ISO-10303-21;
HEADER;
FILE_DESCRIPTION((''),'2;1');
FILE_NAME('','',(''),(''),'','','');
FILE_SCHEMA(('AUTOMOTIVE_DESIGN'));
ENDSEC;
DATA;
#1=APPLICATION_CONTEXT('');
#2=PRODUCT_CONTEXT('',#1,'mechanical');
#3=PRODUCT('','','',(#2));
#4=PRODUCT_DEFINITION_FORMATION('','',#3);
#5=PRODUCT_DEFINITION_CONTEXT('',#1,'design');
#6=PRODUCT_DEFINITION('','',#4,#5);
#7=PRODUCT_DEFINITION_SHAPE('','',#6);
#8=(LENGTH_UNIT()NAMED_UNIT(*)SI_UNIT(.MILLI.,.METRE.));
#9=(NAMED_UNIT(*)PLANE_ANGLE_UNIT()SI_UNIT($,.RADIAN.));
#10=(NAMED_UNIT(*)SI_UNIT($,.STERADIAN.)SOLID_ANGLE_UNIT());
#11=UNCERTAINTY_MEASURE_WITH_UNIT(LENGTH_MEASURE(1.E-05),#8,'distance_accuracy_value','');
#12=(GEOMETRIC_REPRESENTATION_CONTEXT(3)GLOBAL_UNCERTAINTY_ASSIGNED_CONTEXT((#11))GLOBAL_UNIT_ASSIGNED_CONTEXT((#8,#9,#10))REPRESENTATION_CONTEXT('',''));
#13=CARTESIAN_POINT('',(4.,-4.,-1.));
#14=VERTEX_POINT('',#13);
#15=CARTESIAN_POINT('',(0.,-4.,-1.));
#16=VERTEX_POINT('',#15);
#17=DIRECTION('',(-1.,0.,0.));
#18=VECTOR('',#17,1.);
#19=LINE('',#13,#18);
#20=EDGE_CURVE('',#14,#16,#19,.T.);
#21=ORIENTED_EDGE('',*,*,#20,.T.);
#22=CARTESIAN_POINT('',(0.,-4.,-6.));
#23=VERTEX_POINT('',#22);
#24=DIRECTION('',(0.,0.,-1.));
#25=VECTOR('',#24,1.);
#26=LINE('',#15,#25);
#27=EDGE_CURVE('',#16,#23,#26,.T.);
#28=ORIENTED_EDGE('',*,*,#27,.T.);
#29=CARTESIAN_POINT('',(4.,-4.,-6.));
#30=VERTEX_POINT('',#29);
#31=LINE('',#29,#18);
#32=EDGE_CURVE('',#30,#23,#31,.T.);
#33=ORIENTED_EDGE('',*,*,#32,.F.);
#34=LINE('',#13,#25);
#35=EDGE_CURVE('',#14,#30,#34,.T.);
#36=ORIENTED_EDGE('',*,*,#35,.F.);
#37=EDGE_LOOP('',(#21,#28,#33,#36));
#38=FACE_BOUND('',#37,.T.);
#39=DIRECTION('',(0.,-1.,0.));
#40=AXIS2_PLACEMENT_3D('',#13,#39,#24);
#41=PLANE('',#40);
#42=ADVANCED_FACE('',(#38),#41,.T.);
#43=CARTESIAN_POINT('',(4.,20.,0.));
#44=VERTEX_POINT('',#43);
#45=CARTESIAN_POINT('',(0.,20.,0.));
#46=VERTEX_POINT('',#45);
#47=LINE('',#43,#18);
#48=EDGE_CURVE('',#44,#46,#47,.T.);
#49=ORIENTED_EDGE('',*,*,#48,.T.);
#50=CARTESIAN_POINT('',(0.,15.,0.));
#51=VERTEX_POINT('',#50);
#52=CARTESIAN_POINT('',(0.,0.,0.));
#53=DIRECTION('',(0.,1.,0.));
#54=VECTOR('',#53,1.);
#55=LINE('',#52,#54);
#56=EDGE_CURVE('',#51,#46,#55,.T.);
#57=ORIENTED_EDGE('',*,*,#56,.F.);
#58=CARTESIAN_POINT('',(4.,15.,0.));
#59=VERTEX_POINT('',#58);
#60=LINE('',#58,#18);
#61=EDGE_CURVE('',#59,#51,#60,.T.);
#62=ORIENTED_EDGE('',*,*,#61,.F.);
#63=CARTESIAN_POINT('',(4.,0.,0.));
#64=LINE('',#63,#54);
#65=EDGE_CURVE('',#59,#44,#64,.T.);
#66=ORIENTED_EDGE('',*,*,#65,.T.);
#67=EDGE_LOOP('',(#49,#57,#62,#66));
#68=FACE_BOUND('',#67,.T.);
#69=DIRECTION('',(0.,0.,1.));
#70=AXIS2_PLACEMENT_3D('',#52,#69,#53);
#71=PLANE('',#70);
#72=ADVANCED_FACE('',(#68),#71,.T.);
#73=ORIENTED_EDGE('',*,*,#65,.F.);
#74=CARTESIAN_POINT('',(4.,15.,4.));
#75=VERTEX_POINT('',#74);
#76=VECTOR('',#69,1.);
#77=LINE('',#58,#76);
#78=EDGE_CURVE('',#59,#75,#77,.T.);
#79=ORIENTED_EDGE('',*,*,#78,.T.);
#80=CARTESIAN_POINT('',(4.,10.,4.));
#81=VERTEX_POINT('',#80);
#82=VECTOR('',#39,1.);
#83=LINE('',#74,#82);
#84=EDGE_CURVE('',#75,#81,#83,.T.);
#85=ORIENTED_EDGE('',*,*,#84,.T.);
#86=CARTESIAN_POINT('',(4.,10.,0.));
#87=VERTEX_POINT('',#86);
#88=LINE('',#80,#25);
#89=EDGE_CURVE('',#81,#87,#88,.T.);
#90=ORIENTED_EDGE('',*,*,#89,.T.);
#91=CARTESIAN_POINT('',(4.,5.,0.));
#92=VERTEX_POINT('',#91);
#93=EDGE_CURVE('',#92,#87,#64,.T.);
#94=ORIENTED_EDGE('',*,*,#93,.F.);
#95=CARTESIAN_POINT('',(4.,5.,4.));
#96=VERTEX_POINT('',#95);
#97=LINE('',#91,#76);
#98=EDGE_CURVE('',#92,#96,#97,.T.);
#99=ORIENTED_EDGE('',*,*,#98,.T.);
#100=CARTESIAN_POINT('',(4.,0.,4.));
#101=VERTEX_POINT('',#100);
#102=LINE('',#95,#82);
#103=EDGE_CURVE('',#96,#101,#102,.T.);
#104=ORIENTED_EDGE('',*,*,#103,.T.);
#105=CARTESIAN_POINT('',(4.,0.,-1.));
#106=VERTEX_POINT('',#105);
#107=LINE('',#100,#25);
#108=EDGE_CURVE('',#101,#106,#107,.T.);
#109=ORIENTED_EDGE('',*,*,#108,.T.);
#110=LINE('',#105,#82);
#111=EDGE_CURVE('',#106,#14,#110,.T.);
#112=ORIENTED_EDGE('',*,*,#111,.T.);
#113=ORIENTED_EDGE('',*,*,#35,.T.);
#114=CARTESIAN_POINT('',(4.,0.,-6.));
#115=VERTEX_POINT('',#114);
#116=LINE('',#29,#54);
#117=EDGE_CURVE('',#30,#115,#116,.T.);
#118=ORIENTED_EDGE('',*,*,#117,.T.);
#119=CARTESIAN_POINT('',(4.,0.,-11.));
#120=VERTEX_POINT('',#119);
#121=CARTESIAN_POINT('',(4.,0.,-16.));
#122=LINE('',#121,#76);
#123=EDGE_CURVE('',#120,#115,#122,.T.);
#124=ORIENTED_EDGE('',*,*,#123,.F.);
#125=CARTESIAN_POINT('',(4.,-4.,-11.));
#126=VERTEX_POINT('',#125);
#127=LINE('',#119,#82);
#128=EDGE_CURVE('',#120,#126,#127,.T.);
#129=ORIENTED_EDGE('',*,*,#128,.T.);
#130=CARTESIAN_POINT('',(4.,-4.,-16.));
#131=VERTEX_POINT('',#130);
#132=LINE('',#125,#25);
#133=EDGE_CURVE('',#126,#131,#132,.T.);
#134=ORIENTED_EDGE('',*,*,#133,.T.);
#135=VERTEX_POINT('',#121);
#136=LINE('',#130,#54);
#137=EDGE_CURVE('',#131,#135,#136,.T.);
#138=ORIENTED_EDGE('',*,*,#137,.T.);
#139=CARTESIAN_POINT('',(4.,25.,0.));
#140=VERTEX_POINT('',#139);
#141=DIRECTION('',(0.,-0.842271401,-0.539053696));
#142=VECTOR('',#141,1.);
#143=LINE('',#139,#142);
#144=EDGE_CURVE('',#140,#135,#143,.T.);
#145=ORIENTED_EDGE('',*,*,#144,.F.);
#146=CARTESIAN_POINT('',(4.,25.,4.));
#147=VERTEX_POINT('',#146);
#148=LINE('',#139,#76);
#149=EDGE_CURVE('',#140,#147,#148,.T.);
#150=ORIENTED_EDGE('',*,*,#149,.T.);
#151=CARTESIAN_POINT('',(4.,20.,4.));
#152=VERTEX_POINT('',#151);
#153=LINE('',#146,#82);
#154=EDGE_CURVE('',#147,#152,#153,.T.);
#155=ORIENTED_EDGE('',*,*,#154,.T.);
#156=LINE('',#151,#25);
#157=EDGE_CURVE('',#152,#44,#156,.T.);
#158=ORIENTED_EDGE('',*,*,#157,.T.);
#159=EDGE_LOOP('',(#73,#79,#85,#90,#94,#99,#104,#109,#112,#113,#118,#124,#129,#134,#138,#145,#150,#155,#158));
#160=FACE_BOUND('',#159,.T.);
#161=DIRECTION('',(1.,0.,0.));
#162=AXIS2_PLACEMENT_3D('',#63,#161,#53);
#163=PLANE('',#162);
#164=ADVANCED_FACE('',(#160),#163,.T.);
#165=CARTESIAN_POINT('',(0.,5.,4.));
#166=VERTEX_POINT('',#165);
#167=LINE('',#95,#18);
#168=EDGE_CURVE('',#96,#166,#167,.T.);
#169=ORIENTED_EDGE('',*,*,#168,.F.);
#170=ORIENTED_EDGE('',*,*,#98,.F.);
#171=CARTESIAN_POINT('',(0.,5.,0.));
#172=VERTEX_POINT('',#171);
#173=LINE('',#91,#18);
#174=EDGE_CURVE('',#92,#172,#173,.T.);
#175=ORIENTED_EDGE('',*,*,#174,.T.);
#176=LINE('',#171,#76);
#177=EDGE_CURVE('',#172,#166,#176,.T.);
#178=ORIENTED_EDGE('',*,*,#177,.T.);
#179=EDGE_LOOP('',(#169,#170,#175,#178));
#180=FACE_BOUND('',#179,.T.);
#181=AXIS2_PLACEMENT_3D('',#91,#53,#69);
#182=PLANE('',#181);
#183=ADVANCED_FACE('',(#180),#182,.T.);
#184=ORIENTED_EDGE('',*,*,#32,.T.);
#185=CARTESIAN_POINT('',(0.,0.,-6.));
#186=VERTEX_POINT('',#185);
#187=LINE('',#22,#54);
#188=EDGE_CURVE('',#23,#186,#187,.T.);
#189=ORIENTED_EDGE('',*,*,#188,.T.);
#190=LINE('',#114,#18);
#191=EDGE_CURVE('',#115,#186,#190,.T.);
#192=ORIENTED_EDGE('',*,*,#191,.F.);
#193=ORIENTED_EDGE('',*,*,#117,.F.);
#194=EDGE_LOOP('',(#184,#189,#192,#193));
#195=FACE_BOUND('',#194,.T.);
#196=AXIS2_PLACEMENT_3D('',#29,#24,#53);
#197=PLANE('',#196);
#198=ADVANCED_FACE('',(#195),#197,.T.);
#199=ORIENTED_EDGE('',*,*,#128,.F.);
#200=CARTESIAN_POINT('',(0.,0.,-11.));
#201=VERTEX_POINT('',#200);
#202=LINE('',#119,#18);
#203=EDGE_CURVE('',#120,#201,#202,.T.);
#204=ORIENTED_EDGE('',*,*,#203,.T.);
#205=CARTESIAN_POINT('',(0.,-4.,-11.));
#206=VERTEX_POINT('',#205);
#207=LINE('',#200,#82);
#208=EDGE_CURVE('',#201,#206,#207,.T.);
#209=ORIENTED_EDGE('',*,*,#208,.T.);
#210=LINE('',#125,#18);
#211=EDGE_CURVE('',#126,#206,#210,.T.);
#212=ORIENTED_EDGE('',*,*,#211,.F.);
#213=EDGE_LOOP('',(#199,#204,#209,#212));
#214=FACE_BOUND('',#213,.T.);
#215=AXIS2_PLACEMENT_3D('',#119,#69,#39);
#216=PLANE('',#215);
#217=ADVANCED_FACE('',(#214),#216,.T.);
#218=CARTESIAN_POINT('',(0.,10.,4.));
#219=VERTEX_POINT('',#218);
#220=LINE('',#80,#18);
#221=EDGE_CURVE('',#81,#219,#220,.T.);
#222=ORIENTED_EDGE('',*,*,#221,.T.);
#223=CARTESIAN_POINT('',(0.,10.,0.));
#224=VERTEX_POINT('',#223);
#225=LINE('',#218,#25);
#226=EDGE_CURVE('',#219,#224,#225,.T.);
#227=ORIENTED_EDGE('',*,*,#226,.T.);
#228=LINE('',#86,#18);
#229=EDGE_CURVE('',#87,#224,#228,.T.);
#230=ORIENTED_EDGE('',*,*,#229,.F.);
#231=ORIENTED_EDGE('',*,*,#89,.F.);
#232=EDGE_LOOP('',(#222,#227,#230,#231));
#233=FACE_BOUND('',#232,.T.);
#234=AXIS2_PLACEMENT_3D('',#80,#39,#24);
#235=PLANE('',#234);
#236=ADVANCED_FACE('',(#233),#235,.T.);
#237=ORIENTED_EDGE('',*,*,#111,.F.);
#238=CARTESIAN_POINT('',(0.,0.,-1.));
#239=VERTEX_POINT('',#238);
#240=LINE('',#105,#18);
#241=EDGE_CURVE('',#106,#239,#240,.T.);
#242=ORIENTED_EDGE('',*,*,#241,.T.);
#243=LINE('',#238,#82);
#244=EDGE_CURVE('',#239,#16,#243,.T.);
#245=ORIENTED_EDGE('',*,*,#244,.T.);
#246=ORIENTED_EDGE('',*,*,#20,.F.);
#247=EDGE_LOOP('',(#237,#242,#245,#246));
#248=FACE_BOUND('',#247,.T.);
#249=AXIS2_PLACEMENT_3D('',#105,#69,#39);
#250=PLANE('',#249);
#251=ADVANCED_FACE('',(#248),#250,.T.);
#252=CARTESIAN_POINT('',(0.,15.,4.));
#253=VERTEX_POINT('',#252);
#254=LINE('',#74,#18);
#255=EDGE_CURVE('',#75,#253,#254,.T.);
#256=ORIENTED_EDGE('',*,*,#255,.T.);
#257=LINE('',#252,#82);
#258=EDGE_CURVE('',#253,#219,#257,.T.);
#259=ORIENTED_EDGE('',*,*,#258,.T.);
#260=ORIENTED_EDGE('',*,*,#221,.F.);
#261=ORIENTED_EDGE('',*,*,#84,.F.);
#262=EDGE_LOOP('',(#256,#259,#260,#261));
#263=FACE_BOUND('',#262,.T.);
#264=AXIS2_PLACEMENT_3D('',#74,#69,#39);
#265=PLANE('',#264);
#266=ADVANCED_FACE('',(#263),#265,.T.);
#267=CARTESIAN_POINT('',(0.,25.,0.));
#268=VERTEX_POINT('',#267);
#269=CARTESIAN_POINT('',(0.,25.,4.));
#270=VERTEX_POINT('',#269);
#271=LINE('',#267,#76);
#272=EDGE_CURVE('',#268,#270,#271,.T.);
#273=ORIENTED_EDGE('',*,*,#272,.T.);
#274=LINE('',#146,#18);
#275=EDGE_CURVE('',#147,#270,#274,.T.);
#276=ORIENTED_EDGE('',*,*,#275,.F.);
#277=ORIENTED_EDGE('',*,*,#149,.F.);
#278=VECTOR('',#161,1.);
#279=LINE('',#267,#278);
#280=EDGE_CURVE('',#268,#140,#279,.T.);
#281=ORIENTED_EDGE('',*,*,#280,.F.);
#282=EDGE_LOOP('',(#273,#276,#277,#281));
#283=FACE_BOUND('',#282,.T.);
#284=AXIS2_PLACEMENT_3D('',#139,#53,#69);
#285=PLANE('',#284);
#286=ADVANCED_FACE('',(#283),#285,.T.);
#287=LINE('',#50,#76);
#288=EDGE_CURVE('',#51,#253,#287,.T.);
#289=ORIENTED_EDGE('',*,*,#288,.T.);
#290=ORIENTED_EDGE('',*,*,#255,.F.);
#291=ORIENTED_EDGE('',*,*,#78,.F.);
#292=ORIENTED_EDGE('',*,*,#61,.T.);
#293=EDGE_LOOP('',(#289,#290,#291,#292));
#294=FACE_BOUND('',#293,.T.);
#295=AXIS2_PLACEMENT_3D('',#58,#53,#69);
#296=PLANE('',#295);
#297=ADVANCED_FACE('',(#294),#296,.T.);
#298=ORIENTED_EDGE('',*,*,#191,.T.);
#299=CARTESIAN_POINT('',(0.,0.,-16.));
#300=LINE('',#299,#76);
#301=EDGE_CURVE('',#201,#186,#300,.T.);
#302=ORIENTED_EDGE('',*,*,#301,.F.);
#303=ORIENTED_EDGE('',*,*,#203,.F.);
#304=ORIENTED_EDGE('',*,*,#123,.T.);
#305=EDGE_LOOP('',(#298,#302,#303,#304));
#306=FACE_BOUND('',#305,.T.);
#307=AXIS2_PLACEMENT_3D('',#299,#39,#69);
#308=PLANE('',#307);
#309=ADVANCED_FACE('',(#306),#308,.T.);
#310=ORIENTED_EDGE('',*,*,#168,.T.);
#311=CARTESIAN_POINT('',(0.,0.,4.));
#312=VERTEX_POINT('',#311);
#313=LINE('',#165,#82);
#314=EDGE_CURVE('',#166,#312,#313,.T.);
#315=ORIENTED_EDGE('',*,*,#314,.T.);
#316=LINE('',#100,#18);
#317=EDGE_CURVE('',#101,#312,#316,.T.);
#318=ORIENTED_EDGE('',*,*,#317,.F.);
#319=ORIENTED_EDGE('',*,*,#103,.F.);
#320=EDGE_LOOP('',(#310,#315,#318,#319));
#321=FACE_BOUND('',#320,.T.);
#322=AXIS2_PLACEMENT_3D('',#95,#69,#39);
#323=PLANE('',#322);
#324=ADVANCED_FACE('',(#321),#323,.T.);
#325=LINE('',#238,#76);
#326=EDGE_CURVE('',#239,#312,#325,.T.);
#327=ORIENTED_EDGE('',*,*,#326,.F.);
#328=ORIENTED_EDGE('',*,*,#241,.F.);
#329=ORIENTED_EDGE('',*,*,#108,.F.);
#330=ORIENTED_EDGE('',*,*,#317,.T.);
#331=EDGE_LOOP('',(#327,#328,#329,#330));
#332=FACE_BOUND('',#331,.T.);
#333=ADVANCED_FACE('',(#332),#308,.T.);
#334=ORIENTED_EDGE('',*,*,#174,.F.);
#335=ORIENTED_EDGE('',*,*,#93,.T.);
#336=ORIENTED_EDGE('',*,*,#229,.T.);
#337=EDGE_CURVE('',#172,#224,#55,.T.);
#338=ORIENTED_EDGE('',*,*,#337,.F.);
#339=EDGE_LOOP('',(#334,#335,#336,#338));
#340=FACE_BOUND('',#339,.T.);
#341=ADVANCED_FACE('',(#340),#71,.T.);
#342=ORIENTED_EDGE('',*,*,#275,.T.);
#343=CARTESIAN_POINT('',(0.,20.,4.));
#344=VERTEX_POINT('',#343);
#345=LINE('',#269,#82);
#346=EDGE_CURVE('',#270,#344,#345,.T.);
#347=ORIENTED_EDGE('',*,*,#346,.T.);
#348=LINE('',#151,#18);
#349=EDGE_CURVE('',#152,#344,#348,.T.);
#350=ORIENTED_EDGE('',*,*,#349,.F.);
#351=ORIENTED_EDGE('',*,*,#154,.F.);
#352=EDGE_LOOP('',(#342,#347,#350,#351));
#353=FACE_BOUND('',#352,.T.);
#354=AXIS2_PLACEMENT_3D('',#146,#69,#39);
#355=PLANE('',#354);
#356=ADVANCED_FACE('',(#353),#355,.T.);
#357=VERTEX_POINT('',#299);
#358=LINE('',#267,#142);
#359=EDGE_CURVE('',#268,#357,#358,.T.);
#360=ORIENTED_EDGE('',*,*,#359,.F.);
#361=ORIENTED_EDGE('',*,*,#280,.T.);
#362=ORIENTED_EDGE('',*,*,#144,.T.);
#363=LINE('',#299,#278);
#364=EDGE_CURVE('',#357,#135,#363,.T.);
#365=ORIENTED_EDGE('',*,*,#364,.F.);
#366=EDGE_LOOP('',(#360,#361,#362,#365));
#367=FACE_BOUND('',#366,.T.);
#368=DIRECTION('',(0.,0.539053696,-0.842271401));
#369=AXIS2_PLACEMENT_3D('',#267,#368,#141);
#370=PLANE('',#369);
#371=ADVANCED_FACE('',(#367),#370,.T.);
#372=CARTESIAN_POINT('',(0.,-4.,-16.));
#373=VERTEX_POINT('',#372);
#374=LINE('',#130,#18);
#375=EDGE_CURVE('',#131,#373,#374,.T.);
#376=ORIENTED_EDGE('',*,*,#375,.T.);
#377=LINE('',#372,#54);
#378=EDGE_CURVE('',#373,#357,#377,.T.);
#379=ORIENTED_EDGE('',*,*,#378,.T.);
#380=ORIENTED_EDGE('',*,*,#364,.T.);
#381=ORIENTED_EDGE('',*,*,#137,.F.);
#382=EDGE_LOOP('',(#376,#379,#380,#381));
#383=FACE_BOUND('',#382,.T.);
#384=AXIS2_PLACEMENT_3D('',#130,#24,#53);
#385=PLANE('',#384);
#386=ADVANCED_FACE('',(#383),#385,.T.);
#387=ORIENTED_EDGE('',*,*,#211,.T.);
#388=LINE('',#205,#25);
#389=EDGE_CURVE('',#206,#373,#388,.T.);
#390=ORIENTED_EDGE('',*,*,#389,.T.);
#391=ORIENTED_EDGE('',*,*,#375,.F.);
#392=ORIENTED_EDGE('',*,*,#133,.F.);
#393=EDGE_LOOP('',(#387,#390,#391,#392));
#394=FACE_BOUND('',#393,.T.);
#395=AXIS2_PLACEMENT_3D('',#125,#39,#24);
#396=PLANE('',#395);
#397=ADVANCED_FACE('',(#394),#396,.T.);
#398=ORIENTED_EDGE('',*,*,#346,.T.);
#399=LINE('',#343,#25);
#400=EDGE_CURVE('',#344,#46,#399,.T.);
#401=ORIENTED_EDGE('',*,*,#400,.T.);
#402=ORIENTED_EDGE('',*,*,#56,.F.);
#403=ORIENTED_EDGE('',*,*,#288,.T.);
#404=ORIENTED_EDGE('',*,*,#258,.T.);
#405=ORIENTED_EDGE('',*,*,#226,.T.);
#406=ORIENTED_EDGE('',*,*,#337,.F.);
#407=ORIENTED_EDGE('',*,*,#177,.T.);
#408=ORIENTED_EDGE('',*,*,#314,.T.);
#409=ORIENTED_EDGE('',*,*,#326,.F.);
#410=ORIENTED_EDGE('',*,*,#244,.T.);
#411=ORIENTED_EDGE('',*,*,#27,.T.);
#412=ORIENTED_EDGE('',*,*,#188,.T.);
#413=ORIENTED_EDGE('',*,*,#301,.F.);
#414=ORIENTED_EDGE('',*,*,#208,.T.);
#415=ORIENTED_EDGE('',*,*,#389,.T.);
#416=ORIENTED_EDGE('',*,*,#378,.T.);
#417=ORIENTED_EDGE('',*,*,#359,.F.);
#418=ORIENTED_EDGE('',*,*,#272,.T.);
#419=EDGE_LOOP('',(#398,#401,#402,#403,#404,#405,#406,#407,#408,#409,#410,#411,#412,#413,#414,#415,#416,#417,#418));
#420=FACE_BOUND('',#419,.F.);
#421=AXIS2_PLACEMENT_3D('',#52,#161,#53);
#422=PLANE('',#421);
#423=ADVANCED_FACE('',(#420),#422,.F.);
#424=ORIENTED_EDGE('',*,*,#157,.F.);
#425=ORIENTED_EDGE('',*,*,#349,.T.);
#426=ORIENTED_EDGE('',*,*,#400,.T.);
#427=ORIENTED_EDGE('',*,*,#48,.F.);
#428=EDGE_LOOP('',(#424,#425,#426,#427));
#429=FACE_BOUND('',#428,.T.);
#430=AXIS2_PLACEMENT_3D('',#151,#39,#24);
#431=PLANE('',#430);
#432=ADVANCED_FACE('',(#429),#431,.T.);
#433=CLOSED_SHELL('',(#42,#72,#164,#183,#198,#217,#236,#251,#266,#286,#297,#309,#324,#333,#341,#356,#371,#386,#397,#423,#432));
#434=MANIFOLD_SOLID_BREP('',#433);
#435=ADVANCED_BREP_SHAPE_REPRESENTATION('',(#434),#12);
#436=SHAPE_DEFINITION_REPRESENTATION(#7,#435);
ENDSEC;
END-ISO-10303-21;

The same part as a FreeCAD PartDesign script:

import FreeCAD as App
import Part
import Sketcher

doc = App.newDocument("Part")
body = doc.addObject("PartDesign::Body", "Body")

# Sketch on YZ plane
sketch1 = body.newObject("Sketcher::SketchObject", "Sketch")
sketch1.AttachmentSupport = (doc.getObject("YZ_Plane"), [""])
sketch1.MapMode = "FlatFace"
sketch1.addGeometry([
    Part.LineSegment(App.Vector(25, 0, 0), App.Vector(0, 0, 0)),
    Part.LineSegment(App.Vector(0, 0, 0), App.Vector(0, -16, 0)),
    Part.LineSegment(App.Vector(0, -16, 0), App.Vector(25, 0, 0)),
], False)
sketch1.addConstraint([
    Sketcher.Constraint("Coincident", 0, 2, 1, 1),
    Sketcher.Constraint("Coincident", 1, 2, 2, 1),
    Sketcher.Constraint("Coincident", 2, 2, 0, 1),
    Sketcher.Constraint("Horizontal", 0),
    Sketcher.Constraint("Vertical", 1),
    Sketcher.Constraint("Coincident", 0, 2, -1, 1),
    Sketcher.Constraint("DistanceX", 0, 2, 0, 1, 25.0),
    Sketcher.Constraint("DistanceY", 1, 2, 1, 1, 16.0),
])
pad1 = body.newObject("PartDesign::Pad", "Pad")
pad1.Profile = sketch1
pad1.Length = 4

# Sketch on YZ plane
sketch2 = body.newObject("Sketcher::SketchObject", "Sketch001")
sketch2.AttachmentSupport = (doc.getObject("YZ_Plane"), [""])
sketch2.MapMode = "FlatFace"
sketch2.AttachmentOffset = App.Placement(App.Vector(0, 0, 4), App.Rotation())
sketch2.addGeometry([
    Part.LineSegment(App.Vector(0, -16, 0), App.Vector(0, -11, 0)),  # 0
    Part.LineSegment(App.Vector(0, -11, 0), App.Vector(-4, -11, 0)),  # 1
    Part.LineSegment(App.Vector(-4, -11, 0), App.Vector(-4, -16, 0)),  # 2
    Part.LineSegment(App.Vector(-4, -16, 0), App.Vector(0, -16, 0)),  # 3
    Part.LineSegment(App.Vector(0, -6, 0), App.Vector(0, -1, 0)),  # 4
    Part.LineSegment(App.Vector(0, -1, 0), App.Vector(-4, -1, 0)),  # 5
    Part.LineSegment(App.Vector(-4, -1, 0), App.Vector(-4, -6, 0)),  # 6
    Part.LineSegment(App.Vector(-4, -6, 0), App.Vector(0, -6, 0)),  # 7
    Part.LineSegment(App.Vector(0, 4, 0), App.Vector(0, 0, 0)),  # 8
    Part.LineSegment(App.Vector(0, 0, 0), App.Vector(5, 0, 0)),  # 9
    Part.LineSegment(App.Vector(5, 0, 0), App.Vector(5, 4, 0)),  # 10
    Part.LineSegment(App.Vector(5, 4, 0), App.Vector(0, 4, 0)),  # 11
    Part.LineSegment(App.Vector(20, 4, 0), App.Vector(20, 0, 0)),  # 12
    Part.LineSegment(App.Vector(20, 0, 0), App.Vector(25, 0, 0)),  # 13
    Part.LineSegment(App.Vector(25, 0, 0), App.Vector(25, 4, 0)),  # 14
    Part.LineSegment(App.Vector(25, 4, 0), App.Vector(20, 4, 0)),  # 15
    Part.LineSegment(App.Vector(10, 4, 0), App.Vector(10, 0, 0)),  # 16
    Part.LineSegment(App.Vector(10, 0, 0), App.Vector(15, 0, 0)),  # 17
    Part.LineSegment(App.Vector(15, 0, 0), App.Vector(15, 4, 0)),  # 18
    Part.LineSegment(App.Vector(15, 4, 0), App.Vector(10, 4, 0)),  # 19
], False)
sketch2.addConstraint([
    Sketcher.Constraint("Coincident", 0, 2, 1, 1),
    Sketcher.Constraint("Coincident", 1, 2, 2, 1),
    Sketcher.Constraint("Coincident", 2, 2, 3, 1),
    Sketcher.Constraint("Coincident", 3, 2, 0, 1),
    Sketcher.Constraint("Coincident", 4, 2, 5, 1),
    Sketcher.Constraint("Coincident", 5, 2, 6, 1),
    Sketcher.Constraint("Coincident", 6, 2, 7, 1),
    Sketcher.Constraint("Coincident", 7, 2, 4, 1),
    Sketcher.Constraint("Coincident", 8, 2, 9, 1),
    Sketcher.Constraint("Coincident", 9, 2, 10, 1),
    Sketcher.Constraint("Coincident", 10, 2, 11, 1),
    Sketcher.Constraint("Coincident", 11, 2, 8, 1),
    Sketcher.Constraint("Coincident", 12, 2, 13, 1),
    Sketcher.Constraint("Coincident", 13, 2, 14, 1),
    Sketcher.Constraint("Coincident", 14, 2, 15, 1),
    Sketcher.Constraint("Coincident", 15, 2, 12, 1),
    Sketcher.Constraint("Coincident", 16, 2, 17, 1),
    Sketcher.Constraint("Coincident", 17, 2, 18, 1),
    Sketcher.Constraint("Coincident", 18, 2, 19, 1),
    Sketcher.Constraint("Coincident", 19, 2, 16, 1),
    Sketcher.Constraint("Vertical", 0),
    Sketcher.Constraint("Horizontal", 1),
    Sketcher.Constraint("Vertical", 2),
    Sketcher.Constraint("Horizontal", 3),
    Sketcher.Constraint("Vertical", 4),
    Sketcher.Constraint("Horizontal", 5),
    Sketcher.Constraint("Vertical", 6),
    Sketcher.Constraint("Horizontal", 7),
    Sketcher.Constraint("Vertical", 8),
    Sketcher.Constraint("Horizontal", 9),
    Sketcher.Constraint("Vertical", 10),
    Sketcher.Constraint("Horizontal", 11),
    Sketcher.Constraint("Vertical", 12),
    Sketcher.Constraint("Horizontal", 13),
    Sketcher.Constraint("Vertical", 14),
    Sketcher.Constraint("Horizontal", 15),
    Sketcher.Constraint("Vertical", 16),
    Sketcher.Constraint("Horizontal", 17),
    Sketcher.Constraint("Vertical", 18),
    Sketcher.Constraint("Horizontal", 19),
    Sketcher.Constraint("Coincident", 8, 2, -1, 1),
    Sketcher.Constraint("PointOnObject", 0, 2, -2),
    Sketcher.Constraint("PointOnObject", 4, 2, -2),
    Sketcher.Constraint("PointOnObject", 12, 2, -1),
    Sketcher.Constraint("PointOnObject", 16, 2, -1),
    Sketcher.Constraint("Horizontal", 11, 2, 14, 2),
    Sketcher.Constraint("Horizontal", 15, 2, 18, 2),
    Sketcher.Constraint("Vertical", 2, 2, 5, 2),
    Sketcher.Constraint("Equal", 11, 13),
    Sketcher.Constraint("Equal", 15, 17),
    Sketcher.Constraint("Equal", 19, 0),
    Sketcher.Constraint("Equal", 2, 4),
    Sketcher.Constraint("Equal", 7, 8),
    Sketcher.Constraint("DistanceX", 1, 2, 1, 1, 4.0),
    Sketcher.Constraint("DistanceX", 9, 1, 9, 2, 5.0),
    Sketcher.Constraint("DistanceX", -1, 1, 16, 2, 10.0),
    Sketcher.Constraint("DistanceY", 0, 2, 4, 2, 10.0),
    Sketcher.Constraint("DistanceY", 4, 2, 10, 2, 5.0),
    Sketcher.Constraint("DistanceX", 16, 2, 12, 2, 10.0),
])
pad2 = body.newObject("PartDesign::Pad", "Pad001")
pad2.Profile = sketch2
pad2.Length = 4
pad2.Reversed = True

doc.recompute()
